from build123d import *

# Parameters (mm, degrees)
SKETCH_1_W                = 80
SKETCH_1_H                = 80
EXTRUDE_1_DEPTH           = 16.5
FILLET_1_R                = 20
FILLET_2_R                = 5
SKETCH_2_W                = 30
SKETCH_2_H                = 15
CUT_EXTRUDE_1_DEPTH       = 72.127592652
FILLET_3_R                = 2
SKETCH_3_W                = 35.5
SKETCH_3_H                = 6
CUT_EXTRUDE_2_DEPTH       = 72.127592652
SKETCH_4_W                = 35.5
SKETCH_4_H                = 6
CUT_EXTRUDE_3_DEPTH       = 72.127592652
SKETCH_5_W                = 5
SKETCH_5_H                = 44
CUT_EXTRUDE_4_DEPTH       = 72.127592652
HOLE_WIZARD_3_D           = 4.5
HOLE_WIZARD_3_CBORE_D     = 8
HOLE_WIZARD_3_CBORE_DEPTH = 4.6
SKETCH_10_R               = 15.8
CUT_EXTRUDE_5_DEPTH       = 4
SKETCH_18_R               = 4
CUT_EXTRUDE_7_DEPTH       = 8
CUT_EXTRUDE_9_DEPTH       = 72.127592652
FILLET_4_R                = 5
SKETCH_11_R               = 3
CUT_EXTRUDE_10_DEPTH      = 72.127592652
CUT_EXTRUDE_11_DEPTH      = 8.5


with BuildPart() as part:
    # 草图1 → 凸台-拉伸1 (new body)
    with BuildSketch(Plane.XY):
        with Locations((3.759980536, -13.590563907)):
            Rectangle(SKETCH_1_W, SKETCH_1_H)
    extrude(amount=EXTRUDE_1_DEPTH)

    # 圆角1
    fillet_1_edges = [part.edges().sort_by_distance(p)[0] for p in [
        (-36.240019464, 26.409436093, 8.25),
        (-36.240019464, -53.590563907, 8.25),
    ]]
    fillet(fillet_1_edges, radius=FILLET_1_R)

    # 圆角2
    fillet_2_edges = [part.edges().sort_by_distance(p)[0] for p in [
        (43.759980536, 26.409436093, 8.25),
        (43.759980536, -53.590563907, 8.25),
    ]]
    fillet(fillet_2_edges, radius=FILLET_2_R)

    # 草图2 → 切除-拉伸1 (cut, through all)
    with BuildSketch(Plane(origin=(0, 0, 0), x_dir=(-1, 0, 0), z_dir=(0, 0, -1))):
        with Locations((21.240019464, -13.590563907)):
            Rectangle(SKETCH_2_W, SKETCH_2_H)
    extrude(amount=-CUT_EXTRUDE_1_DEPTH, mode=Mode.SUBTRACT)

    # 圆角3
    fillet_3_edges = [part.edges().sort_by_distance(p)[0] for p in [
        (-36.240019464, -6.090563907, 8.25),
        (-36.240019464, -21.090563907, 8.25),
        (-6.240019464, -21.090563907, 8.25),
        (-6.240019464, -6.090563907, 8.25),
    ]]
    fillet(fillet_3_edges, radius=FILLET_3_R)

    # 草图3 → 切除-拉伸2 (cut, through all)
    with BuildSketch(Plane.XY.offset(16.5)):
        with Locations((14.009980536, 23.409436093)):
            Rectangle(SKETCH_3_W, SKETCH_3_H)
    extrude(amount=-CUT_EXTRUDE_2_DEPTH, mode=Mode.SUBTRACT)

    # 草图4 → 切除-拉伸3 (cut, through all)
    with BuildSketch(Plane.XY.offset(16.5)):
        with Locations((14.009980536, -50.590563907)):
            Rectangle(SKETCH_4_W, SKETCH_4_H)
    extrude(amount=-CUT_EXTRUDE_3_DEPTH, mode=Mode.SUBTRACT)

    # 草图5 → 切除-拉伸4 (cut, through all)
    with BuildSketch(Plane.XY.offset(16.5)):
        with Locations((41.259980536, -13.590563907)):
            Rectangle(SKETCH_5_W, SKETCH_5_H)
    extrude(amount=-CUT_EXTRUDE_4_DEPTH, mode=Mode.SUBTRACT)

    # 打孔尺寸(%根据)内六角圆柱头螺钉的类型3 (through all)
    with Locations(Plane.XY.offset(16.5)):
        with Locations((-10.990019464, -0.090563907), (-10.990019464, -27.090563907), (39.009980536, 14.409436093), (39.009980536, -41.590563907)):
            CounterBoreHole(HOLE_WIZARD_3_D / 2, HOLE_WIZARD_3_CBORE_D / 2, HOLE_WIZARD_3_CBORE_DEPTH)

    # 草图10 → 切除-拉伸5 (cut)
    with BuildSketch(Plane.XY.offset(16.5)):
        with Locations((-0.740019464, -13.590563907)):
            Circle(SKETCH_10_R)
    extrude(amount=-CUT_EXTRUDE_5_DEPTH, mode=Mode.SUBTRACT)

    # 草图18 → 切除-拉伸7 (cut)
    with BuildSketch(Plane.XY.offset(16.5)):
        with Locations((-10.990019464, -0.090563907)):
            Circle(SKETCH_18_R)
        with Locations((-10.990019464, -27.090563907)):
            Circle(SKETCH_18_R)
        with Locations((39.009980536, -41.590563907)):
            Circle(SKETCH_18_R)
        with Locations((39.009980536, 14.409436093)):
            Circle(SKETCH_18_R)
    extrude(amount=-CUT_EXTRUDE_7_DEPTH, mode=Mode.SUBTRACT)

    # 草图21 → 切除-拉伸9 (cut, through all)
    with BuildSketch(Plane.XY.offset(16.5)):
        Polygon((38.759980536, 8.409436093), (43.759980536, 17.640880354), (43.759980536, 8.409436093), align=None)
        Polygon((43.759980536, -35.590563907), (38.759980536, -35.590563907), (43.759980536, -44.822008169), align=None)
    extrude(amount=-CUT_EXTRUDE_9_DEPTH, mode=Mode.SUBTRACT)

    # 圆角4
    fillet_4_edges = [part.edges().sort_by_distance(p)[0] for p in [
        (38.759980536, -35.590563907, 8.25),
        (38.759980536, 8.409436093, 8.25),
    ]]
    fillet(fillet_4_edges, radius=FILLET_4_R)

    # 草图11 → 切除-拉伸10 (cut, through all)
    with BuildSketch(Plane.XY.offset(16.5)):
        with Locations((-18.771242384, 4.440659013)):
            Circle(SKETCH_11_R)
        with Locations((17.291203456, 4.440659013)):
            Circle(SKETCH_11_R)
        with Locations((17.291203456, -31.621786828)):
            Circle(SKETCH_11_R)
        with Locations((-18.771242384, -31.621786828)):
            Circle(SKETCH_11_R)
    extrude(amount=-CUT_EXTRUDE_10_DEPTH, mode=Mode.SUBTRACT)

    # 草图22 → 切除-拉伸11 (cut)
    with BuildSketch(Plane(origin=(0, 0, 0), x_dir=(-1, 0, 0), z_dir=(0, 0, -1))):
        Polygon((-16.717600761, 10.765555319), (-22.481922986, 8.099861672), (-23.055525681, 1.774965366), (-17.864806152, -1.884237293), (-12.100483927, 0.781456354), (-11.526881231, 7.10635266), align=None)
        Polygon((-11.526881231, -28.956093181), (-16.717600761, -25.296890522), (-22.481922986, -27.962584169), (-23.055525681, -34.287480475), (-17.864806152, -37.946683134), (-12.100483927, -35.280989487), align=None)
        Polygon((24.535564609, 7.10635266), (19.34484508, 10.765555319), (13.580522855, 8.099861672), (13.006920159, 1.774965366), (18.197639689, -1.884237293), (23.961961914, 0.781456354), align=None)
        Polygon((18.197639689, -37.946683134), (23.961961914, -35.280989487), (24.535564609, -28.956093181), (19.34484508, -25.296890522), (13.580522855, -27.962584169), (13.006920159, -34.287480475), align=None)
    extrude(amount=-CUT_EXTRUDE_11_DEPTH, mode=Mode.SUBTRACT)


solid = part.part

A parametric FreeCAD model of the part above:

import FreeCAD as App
import Part
import Sketcher

V = App.Vector
Q = App.Units.Quantity


def edges_at(feature, points):
    """Names of the edges that pass closest to the given points."""
    edges = feature.Shape.Edges
    near = lambda p: min(range(len(edges)), key=lambda i: edges[i].distToShape(Part.Vertex(*p))[0])
    return sorted({f"Edge{near(p) + 1}" for p in points})

doc = App.newDocument("Part")
body = doc.addObject("PartDesign::Body", "Body")

sketch1 = body.newObject("Sketcher::SketchObject", "Sketch")
sketch1.AttachmentSupport = (doc.getObject("XY_Plane"), [""])
sketch1.MapMode = "FlatFace"
sketch1.addGeometry([
    Part.LineSegment(V(-36, 26, 0), V(-36, -54, 0)),
    Part.LineSegment(V(-36, -54, 0), V(44, -54, 0)),
    Part.LineSegment(V(44, -54, 0), V(44, 26, 0)),
    Part.LineSegment(V(44, 26, 0), V(-36, 26, 0)),
], False)
sketch1.addConstraint([
    Sketcher.Constraint("Coincident", 0, 2, 1, 1),
    Sketcher.Constraint("Coincident", 1, 2, 2, 1),
    Sketcher.Constraint("Coincident", 2, 2, 3, 1),
    Sketcher.Constraint("Coincident", 3, 2, 0, 1),
    Sketcher.Constraint("Vertical", 0),
    Sketcher.Constraint("Horizontal", 1),
    Sketcher.Constraint("Vertical", 2),
    Sketcher.Constraint("Horizontal", 3),
    Sketcher.Constraint("Equal", 3, 0),
    Sketcher.Constraint("DistanceX", 1, 1, 1, 2, Q("80 mm")),
    Sketcher.Constraint("DistanceX", 0, 2, -1, 1, Q("36.240019 mm")),
    Sketcher.Constraint("DistanceY", 0, 2, -1, 1, Q("53.590564 mm")),
])
pad1 = body.newObject("PartDesign::Pad", "Pad")
pad1.Profile = sketch1
pad1.Length = 16.5
doc.recompute()

fillet = body.newObject("PartDesign::Fillet", "Fillet")
fillet.Base = (pad1, edges_at(pad1, [(-36.24, 26.409, 8.25), (-36.24, -53.591, 8.25)]))
fillet.Radius = 20
doc.recompute()

fillet2 = body.newObject("PartDesign::Fillet", "Fillet001")
fillet2.Base = (fillet, edges_at(fillet, [(43.76, 26.409, 8.25), (43.76, -53.591, 8.25)]))
fillet2.Radius = 5

sketch2 = body.newObject("Sketcher::SketchObject", "Sketch001")
sketch2.AttachmentSupport = (doc.getObject("XY_Plane"), [""])
sketch2.MapMode = "FlatFace"
sketch2.addGeometry([
    Part.LineSegment(V(-6, -6, 0), V(-6, -21, 0)),
    Part.LineSegment(V(-6, -21, 0), V(-36, -21, 0)),
    Part.LineSegment(V(-36, -21, 0), V(-36, -6, 0)),
    Part.LineSegment(V(-36, -6, 0), V(-6, -6, 0)),
], False)
sketch2.addConstraint([
    Sketcher.Constraint("Coincident", 0, 2, 1, 1),
    Sketcher.Constraint("Coincident", 1, 2, 2, 1),
    Sketcher.Constraint("Coincident", 2, 2, 3, 1),
    Sketcher.Constraint("Coincident", 3, 2, 0, 1),
    Sketcher.Constraint("Vertical", 0),
    Sketcher.Constraint("Horizontal", 1),
    Sketcher.Constraint("Vertical", 2),
    Sketcher.Constraint("Horizontal", 3),
    Sketcher.Constraint("DistanceX", 1, 2, 1, 1, Q("30 mm")),
    Sketcher.Constraint("DistanceY", 0, 2, 0, 1, Q("15 mm")),
    Sketcher.Constraint("DistanceX", 0, 2, -1, 1, Q("6.240019 mm")),
    Sketcher.Constraint("DistanceY", 0, 2, -1, 1, Q("21.090564 mm")),
])
pocket1 = body.newObject("PartDesign::Pocket", "Pocket")
pocket1.Profile = sketch2
pocket1.Type = "ThroughAll"
pocket1.Reversed = True
doc.recompute()

fillet3 = body.newObject("PartDesign::Fillet", "Fillet002")
fillet3.Base = (pocket1, edges_at(pocket1, [
    (-36.24, -6.091, 8.25),
    (-36.24, -21.091, 8.25),
    (-6.24, -21.091, 8.25),
    (-6.24, -6.091, 8.25),
]))
fillet3.Radius = 2

sketch3 = body.newObject("Sketcher::SketchObject", "Sketch002")
sketch3.AttachmentSupport = (doc.getObject("XY_Plane"), [""])
sketch3.MapMode = "FlatFace"
sketch3.AttachmentOffset = App.Placement(V(0, 0, 16.5), App.Rotation())
sketch3.addGeometry([
    Part.LineSegment(V(-4, 26, 0), V(-4, 20, 0)),
    Part.LineSegment(V(-4, 20, 0), V(32, 20, 0)),
    Part.LineSegment(V(32, 20, 0), V(32, 26, 0)),
    Part.LineSegment(V(32, 26, 0), V(-4, 26, 0)),
], False)
sketch3.addConstraint([
    Sketcher.Constraint("Coincident", 0, 2, 1, 1),
    Sketcher.Constraint("Coincident", 1, 2, 2, 1),
    Sketcher.Constraint("Coincident", 2, 2, 3, 1),
    Sketcher.Constraint("Coincident", 3, 2, 0, 1),
    Sketcher.Constraint("Vertical", 0),
    Sketcher.Constraint("Horizontal", 1),
    Sketcher.Constraint("Vertical", 2),
    Sketcher.Constraint("Horizontal", 3),
    Sketcher.Constraint("DistanceY", 0, 2, 0, 1, Q("6 mm")),
    Sketcher.Constraint("DistanceX", 1, 1, 1, 2, Q("35.5 mm")),
    Sketcher.Constraint("DistanceX", 0, 2, -1, 1, Q("3.740019 mm")),
    Sketcher.Constraint("DistanceY", -1, 1, 0, 2, Q("20.409436 mm")),
])
pocket2 = body.newObject("PartDesign::Pocket", "Pocket001")
pocket2.Profile = sketch3
pocket2.Type = "ThroughAll"

sketch4 = body.newObject("Sketcher::SketchObject", "Sketch003")
sketch4.AttachmentSupport = (doc.getObject("XY_Plane"), [""])
sketch4.MapMode = "FlatFace"
sketch4.AttachmentOffset = App.Placement(V(0, 0, 16.5), App.Rotation())
sketch4.addGeometry([
    Part.LineSegment(V(-4, -48, 0), V(-4, -54, 0)),
    Part.LineSegment(V(-4, -54, 0), V(32, -54, 0)),
    Part.LineSegment(V(32, -54, 0), V(32, -48, 0)),
    Part.LineSegment(V(32, -48, 0), V(-4, -48, 0)),
], False)
sketch4.addConstraint([
    Sketcher.Constraint("Coincident", 0, 2, 1, 1),
    Sketcher.Constraint("Coincident", 1, 2, 2, 1),
    Sketcher.Constraint("Coincident", 2, 2, 3, 1),
    Sketcher.Constraint("Coincident", 3, 2, 0, 1),
    Sketcher.Constraint("Vertical", 0),
    Sketcher.Constraint("Horizontal", 1),
    Sketcher.Constraint("Vertical", 2),
    Sketcher.Constraint("Horizontal", 3),
    Sketcher.Constraint("DistanceY", 0, 2, 0, 1, Q("6 mm")),
    Sketcher.Constraint("DistanceX", 1, 1, 1, 2, Q("35.5 mm")),
    Sketcher.Constraint("DistanceX", 0, 2, -1, 1, Q("3.740019 mm")),
    Sketcher.Constraint("DistanceY", 0, 2, -1, 1, Q("53.590564 mm")),
])
pocket3 = body.newObject("PartDesign::Pocket", "Pocket002")
pocket3.Profile = sketch4
pocket3.Type = "ThroughAll"

sketch5 = body.newObject("Sketcher::SketchObject", "Sketch004")
sketch5.AttachmentSupport = (doc.getObject("XY_Plane"), [""])
sketch5.MapMode = "FlatFace"
sketch5.AttachmentOffset = App.Placement(V(0, 0, 16.5), App.Rotation())
sketch5.addGeometry([
    Part.LineSegment(V(39, 8, 0), V(39, -36, 0)),
    Part.LineSegment(V(39, -36, 0), V(44, -36, 0)),
    Part.LineSegment(V(44, -36, 0), V(44, 8, 0)),
    Part.LineSegment(V(44, 8, 0), V(39, 8, 0)),
], False)
sketch5.addConstraint([
    Sketcher.Constraint("Coincident", 0, 2, 1, 1),
    Sketcher.Constraint("Coincident", 1, 2, 2, 1),
    Sketcher.Constraint("Coincident", 2, 2, 3, 1),
    Sketcher.Constraint("Coincident", 3, 2, 0, 1),
    Sketcher.Constraint("Vertical", 0),
    Sketcher.Constraint("Horizontal", 1),
    Sketcher.Constraint("Vertical", 2),
    Sketcher.Constraint("Horizontal", 3),
    Sketcher.Constraint("DistanceX", 1, 1, 1, 2, Q("5 mm")),
    Sketcher.Constraint("DistanceY", 0, 2, 0, 1, Q("44 mm")),
    Sketcher.Constraint("DistanceX", -1, 1, 0, 2, Q("38.759981 mm")),
    Sketcher.Constraint("DistanceY", 0, 2, -1, 1, Q("35.590564 mm")),
])
pocket4 = body.newObject("PartDesign::Pocket", "Pocket003")
pocket4.Profile = sketch5
pocket4.Type = "ThroughAll"

sketch6 = body.newObject("Sketcher::SketchObject", "Sketch005")
sketch6.AttachmentSupport = (doc.getObject("XY_Plane"), [""])
sketch6.MapMode = "FlatFace"
sketch6.AttachmentOffset = App.Placement(V(0, 0, 16.5), App.Rotation())
sketch6.addGeometry([
    Part.Circle(V(-11, -0.1, 0), V(0, 0, 1), 2.2),
    Part.Circle(V(-11, -27.1, 0), V(0, 0, 1), 2.2),
    Part.Circle(V(39, 14.4, 0), V(0, 0, 1), 2.2),
    Part.Circle(V(39, -41.6, 0), V(0, 0, 1), 2.2),
], False)
sketch6.addConstraint([
    Sketcher.Constraint("Equal", 0, 1),
    Sketcher.Constraint("Equal", 1, 2),
    Sketcher.Constraint("Equal", 2, 3),
    Sketcher.Constraint("Vertical", 0, 3, 1, 3),
    Sketcher.Constraint("Vertical", 2, 3, 3, 3),
    Sketcher.Constraint("Diameter", 0, Q("4.5 mm")),
    Sketcher.Constraint("DistanceY", 1, 3, 0, 3, Q("27 mm")),
    Sketcher.Constraint("DistanceX", 0, 3, 2, 3, Q("50 mm")),
    Sketcher.Constraint("DistanceY", 3, 3, 2, 3, Q("56 mm")),
    Sketcher.Constraint("DistanceY", 0, 3, 2, 3, Q("14.5 mm")),
    Sketcher.Constraint("DistanceX", 0, 3, -1, 1, Q("10.990019 mm")),
    Sketcher.Constraint("DistanceY", 0, 3, -1, 1, Q("0.090564 mm")),
])
doc.recompute()
hole = body.newObject("PartDesign::Hole", "Hole")
hole.Profile = sketch6
hole.ThreadType = "None"
hole.Diameter = 4.5
hole.DepthType = "ThroughAll"
hole.HoleCutType = "Counterbore"
hole.HoleCutDiameter = 8
hole.HoleCutDepth = 4.6

sketch7 = body.newObject("Sketcher::SketchObject", "Sketch006")
sketch7.AttachmentSupport = (doc.getObject("XY_Plane"), [""])
sketch7.MapMode = "FlatFace"
sketch7.AttachmentOffset = App.Placement(V(0, 0, 16.5), App.Rotation())
sketch7.addGeometry(Part.Circle(V(-1, -14, 0), V(0, 0, 1), 16), False)
sketch7.addConstraint([
    Sketcher.Constraint("Diameter", 0, Q("31.6 mm")),
    Sketcher.Constraint("DistanceX", 0, 3, -1, 1, Q("0.740019 mm")),
    Sketcher.Constraint("DistanceY", 0, 3, -1, 1, Q("13.590564 mm")),
])
pocket5 = body.newObject("PartDesign::Pocket", "Pocket004")
pocket5.Profile = sketch7
pocket5.Length = 4

sketch8 = body.newObject("Sketcher::SketchObject", "Sketch007")
sketch8.AttachmentSupport = (doc.getObject("XY_Plane"), [""])
sketch8.MapMode = "FlatFace"
sketch8.AttachmentOffset = App.Placement(V(0, 0, 16.5), App.Rotation())
sketch8.addGeometry([
    Part.Circle(V(-11, -0.1, 0), V(0, 0, 1), 4),
    Part.Circle(V(-11, -27.1, 0), V(0, 0, 1), 4),
    Part.Circle(V(39, -41.6, 0), V(0, 0, 1), 4),
    Part.Circle(V(39, 14.4, 0), V(0, 0, 1), 4),
], False)
sketch8.addConstraint([
    Sketcher.Constraint("Equal", 0, 1),
    Sketcher.Constraint("Equal", 1, 2),
    Sketcher.Constraint("Equal", 2, 3),
    Sketcher.Constraint("Vertical", 0, 3, 1, 3),
    Sketcher.Constraint("Vertical", 2, 3, 3, 3),
    Sketcher.Constraint("Diameter", 0, Q("8 mm")),
    Sketcher.Constraint("DistanceY", 1, 3, 0, 3, Q("27 mm")),
    Sketcher.Constraint("DistanceX", 1, 3, 2, 3, Q("50 mm")),
    Sketcher.Constraint("DistanceY", 2, 3, 3, 3, Q("56 mm")),
    Sketcher.Constraint("DistanceY", 2, 3, 1, 3, Q("14.5 mm")),
    Sketcher.Constraint("DistanceX", 0, 3, -1, 1, Q("10.990019 mm")),
    Sketcher.Constraint("DistanceY", 0, 3, -1, 1, Q("0.090564 mm")),
])
pocket6 = body.newObject("PartDesign::Pocket", "Pocket005")
pocket6.Profile = sketch8
pocket6.Length = 8

sketch9 = body.newObject("Sketcher::SketchObject", "Sketch008")
sketch9.AttachmentSupport = (doc.getObject("XY_Plane"), [""])
sketch9.MapMode = "FlatFace"
sketch9.AttachmentOffset = App.Placement(V(0, 0, 16.5), App.Rotation())
sketch9.addGeometry([
    Part.LineSegment(V(44, 18, 0), V(39, 8, 0)),
    Part.LineSegment(V(39, 8, 0), V(44, 8, 0)),
    Part.LineSegment(V(44, 8, 0), V(44, 18, 0)),
    Part.LineSegment(V(44, -36, 0), V(39, -36, 0)),
    Part.LineSegment(V(39, -36, 0), V(44, -45, 0)),
    Part.LineSegment(V(44, -45, 0), V(44, -36, 0)),
], False)
sketch9.addConstraint([
    Sketcher.Constraint("Coincident", 0, 2, 1, 1),
    Sketcher.Constraint("Coincident", 1, 2, 2, 1),
    Sketcher.Constraint("Coincident", 2, 2, 0, 1),
    Sketcher.Constraint("Coincident", 3, 2, 4, 1),
    Sketcher.Constraint("Coincident", 4, 2, 5, 1),
    Sketcher.Constraint("Coincident", 5, 2, 3, 1),
    Sketcher.Constraint("Horizontal", 1),
    Sketcher.Constraint("Vertical", 2),
    Sketcher.Constraint("Horizontal", 3),
    Sketcher.Constraint("Vertical", 5),
    Sketcher.Constraint("Vertical", 0, 2, 3, 2),
    Sketcher.Constraint("Vertical", 2, 2, 4, 2),
    Sketcher.Constraint("Equal", 2, 5),
    Sketcher.Constraint("DistanceX", 1, 1, 1, 2, Q("5 mm")),
    Sketcher.Constraint("DistanceY", 3, 2, 0, 2, Q("44 mm")),
    Sketcher.Constraint("Distance", 0, Q("10.498551 mm")),
    Sketcher.Constraint("DistanceX", -1, 1, 0, 2, Q("38.759981 mm")),
    Sketcher.Constraint("DistanceY", -1, 1, 2, 2, Q("17.64088 mm")),
])
pocket7 = body.newObject("PartDesign::Pocket", "Pocket006")
pocket7.Profile = sketch9
pocket7.Type = "ThroughAll"
doc.recompute()

fillet4 = body.newObject("PartDesign::Fillet", "Fillet003")
fillet4.Base = (pocket7, edges_at(pocket7, [(38.76, -35.591, 8.25), (38.76, 8.409, 8.25)]))
fillet4.Radius = 5

sketch10 = body.newObject("Sketcher::SketchObject", "Sketch009")
sketch10.AttachmentSupport = (doc.getObject("XY_Plane"), [""])
sketch10.MapMode = "FlatFace"
sketch10.AttachmentOffset = App.Placement(V(0, 0, 16.5), App.Rotation())
sketch10.addGeometry([
    Part.Circle(V(-18.8, 4.4, 0), V(0, 0, 1), 3),
    Part.Circle(V(17.3, 4.4, 0), V(0, 0, 1), 3),
    Part.Circle(V(17.3, -31.6, 0), V(0, 0, 1), 3),
    Part.Circle(V(-18.8, -31.6, 0), V(0, 0, 1), 3),
], False)
sketch10.addConstraint([
    Sketcher.Constraint("Equal", 0, 1),
    Sketcher.Constraint("Equal", 1, 2),
    Sketcher.Constraint("Equal", 2, 3),
    Sketcher.Constraint("Horizontal", 0, 3, 1, 3),
    Sketcher.Constraint("Horizontal", 2, 3, 3, 3),
    Sketcher.Constraint("Vertical", 1, 3, 2, 3),
    Sketcher.Constraint("Vertical", 0, 3, 3, 3),
    Sketcher.Constraint("Diameter", 0, Q("6 mm")),
    Sketcher.Constraint("DistanceY", -1, 1, 0, 3, Q("4.440659 mm")),
    Sketcher.Constraint("DistanceX", 0, 3, -1, 1, Q("18.771242 mm")),
    Sketcher.Constraint("DistanceX", -1, 1, 1, 3, Q("17.291203 mm")),
    Sketcher.Constraint("DistanceY", 2, 3, -1, 1, Q("31.621787 mm")),
])
pocket8 = body.newObject("PartDesign::Pocket", "Pocket007")
pocket8.Profile = sketch10
pocket8.Type = "ThroughAll"

sketch11 = body.newObject("Sketcher::SketchObject", "Sketch010")
sketch11.AttachmentSupport = (doc.getObject("XY_Plane"), [""])
sketch11.MapMode = "FlatFace"
sketch11.addGeometry([
    Part.LineSegment(V(16.717601, 10.765555, 0), V(22.481923, 8.099862, 0)),
    Part.LineSegment(V(22.481923, 8.099862, 0), V(23.055526, 1.774965, 0)),
    Part.LineSegment(V(23.055526, 1.774965, 0), V(17.864806, -1.884237, 0)),
    Part.LineSegment(V(17.864806, -1.884237, 0), V(12.100484, 0.781456, 0)),
    Part.LineSegment(V(12.100484, 0.781456, 0), V(11.526881, 7.106353, 0)),
    Part.LineSegment(V(11.526881, 7.106353, 0), V(16.717601, 10.765555, 0)),
    Part.LineSegment(V(11.526881, -28.956093, 0), V(16.717601, -25.296891, 0)),
    Part.LineSegment(V(16.717601, -25.296891, 0), V(22.481923, -27.962584, 0)),
    Part.LineSegment(V(22.481923, -27.962584, 0), V(23.055526, -34.28748, 0)),
    Part.LineSegment(V(23.055526, -34.28748, 0), V(17.864806, -37.946683, 0)),
    Part.LineSegment(V(17.864806, -37.946683, 0), V(12.100484, -35.280989, 0)),
    Part.LineSegment(V(12.100484, -35.280989, 0), V(11.526881, -28.956093, 0)),
    Part.LineSegment(V(-24.535565, 7.106353, 0), V(-19.344845, 10.765555, 0)),
    Part.LineSegment(V(-19.344845, 10.765555, 0), V(-13.580523, 8.099862, 0)),
    Part.LineSegment(V(-13.580523, 8.099862, 0), V(-13.00692, 1.774965, 0)),
    Part.LineSegment(V(-13.00692, 1.774965, 0), V(-18.19764, -1.884237, 0)),
    Part.LineSegment(V(-18.19764, -1.884237, 0), V(-23.961962, 0.781456, 0)),
    Part.LineSegment(V(-23.961962, 0.781456, 0), V(-24.535565, 7.106353, 0)),
    Part.LineSegment(V(-18.19764, -37.946683, 0), V(-23.961962, -35.280989, 0)),
    Part.LineSegment(V(-23.961962, -35.280989, 0), V(-24.535565, -28.956093, 0)),
    Part.LineSegment(V(-24.535565, -28.956093, 0), V(-19.344845, -25.296891, 0)),
    Part.LineSegment(V(-19.344845, -25.296891, 0), V(-13.580523, -27.962584, 0)),
    Part.LineSegment(V(-13.580523, -27.962584, 0), V(-13.00692, -34.28748, 0)),
    Part.LineSegment(V(-13.00692, -34.28748, 0), V(-18.19764, -37.946683, 0)),
], False)
sketch11.addConstraint([
    Sketcher.Constraint("Coincident", 0, 2, 1, 1),
    Sketcher.Constraint("Coincident", 1, 2, 2, 1),
    Sketcher.Constraint("Coincident", 2, 2, 3, 1),
    Sketcher.Constraint("Coincident", 3, 2, 4, 1),
    Sketcher.Constraint("Coincident", 4, 2, 5, 1),
    Sketcher.Constraint("Coincident", 5, 2, 0, 1),
    Sketcher.Constraint("Coincident", 6, 2, 7, 1),
    Sketcher.Constraint("Coincident", 7, 2, 8, 1),
    Sketcher.Constraint("Coincident", 8, 2, 9, 1),
    Sketcher.Constraint("Coincident", 9, 2, 10, 1),
    Sketcher.Constraint("Coincident", 10, 2, 11, 1),
    Sketcher.Constraint("Coincident", 11, 2, 6, 1),
    Sketcher.Constraint("Coincident", 12, 2, 13, 1),
    Sketcher.Constraint("Coincident", 13, 2, 14, 1),
    Sketcher.Constraint("Coincident", 14, 2, 15, 1),
    Sketcher.Constraint("Coincident", 15, 2, 16, 1),
    Sketcher.Constraint("Coincident", 16, 2, 17, 1),
    Sketcher.Constraint("Coincident", 17, 2, 12, 1),
    Sketcher.Constraint("Coincident", 18, 2, 19, 1),
    Sketcher.Constraint("Coincident", 19, 2, 20, 1),
    Sketcher.Constraint("Coincident", 20, 2, 21, 1),
    Sketcher.Constraint("Coincident", 21, 2, 22, 1),
    Sketcher.Constraint("Coincident", 22, 2, 23, 1),
    Sketcher.Constraint("Coincident", 23, 2, 18, 1),
    Sketcher.Constraint("DistanceX", -1, 1, 5, 2, Q("16.717601 mm")),
    Sketcher.Constraint("DistanceX", -1, 1, 6, 2, Q("16.717601 mm")),
    Sketcher.Constraint("DistanceY", 2, 2, 0, 2, Q("9.984099 mm")),
    Sketcher.Constraint("DistanceY", 3, 2, 5, 2, Q("9.984099 mm")),
    Sketcher.Constraint("DistanceY", 9, 2, 7, 2, Q("9.984099 mm")),
    Sketcher.Constraint("DistanceY", 10, 2, 6, 2, Q("9.984099 mm")),
    Sketcher.Constraint("DistanceY", 3, 2, 12, 2, Q("9.984099 mm")),
    Sketcher.Constraint("DistanceY", 2, 2, 13, 2, Q("9.984099 mm")),
    Sketcher.Constraint("DistanceX", 14, 2, 4, 2, Q("24.533801 mm")),
    Sketcher.Constraint("DistanceY", 15, 2, 13, 2, Q("9.984099 mm")),
    Sketcher.Constraint("DistanceY", 16, 2, 12, 2, Q("9.984099 mm")),
    Sketcher.Constraint("DistanceY", 18, 2, 20, 2, Q("9.984099 mm")),
    Sketcher.Constraint("DistanceX", 22, 2, 11, 2, Q("24.533801 mm")),
    Sketcher.Constraint("DistanceY", 23, 2, 21, 2, Q("9.984099 mm")),
    Sketcher.Constraint("DistanceY", -1, 1, 0, 2, Q("8.099862 mm")),
    Sketcher.Constraint("DistanceX", -1, 1, 4, 2, Q("11.526881 mm")),
    Sketcher.Constraint("DistanceY", 6, 2, -1, 1, Q("25.296891 mm")),
    Sketcher.Constraint("DistanceY", 8, 2, -1, 1, Q("34.28748 mm")),
    Sketcher.Constraint("DistanceX", -1, 1, 11, 2, Q("11.526881 mm")),
    Sketcher.Constraint("DistanceX", 15, 2, -1, 1, Q("18.19764 mm")),
    Sketcher.Constraint("DistanceX", 16, 2, -1, 1, Q("23.961962 mm")),
    Sketcher.Constraint("DistanceX", 18, 2, -1, 1, Q("23.961962 mm")),
    Sketcher.Constraint("DistanceY", 18, 2, -1, 1, Q("35.280989 mm")),
    Sketcher.Constraint("DistanceY", 22, 2, -1, 1, Q("34.28748 mm")),
    Sketcher.Constraint("DistanceX", 23, 2, -1, 1, Q("18.19764 mm")),
    Sketcher.Constraint("DistanceX", 2, 2, 1, 2, Q("5.19072 mm")),
    Sketcher.Constraint("DistanceX", 3, 2, 1, 2, Q("10.955042 mm")),
    Sketcher.Constraint("DistanceY", 3, 2, 1, 2, Q("0.993509 mm")),
    Sketcher.Constraint("DistanceX", 3, 2, 0, 2, Q("10.381439 mm")),
    Sketcher.Constraint("DistanceY", 2, 2, 4, 2, Q("8.99059 mm")),
    Sketcher.Constraint("DistanceX", 4, 2, 0, 2, Q("10.955042 mm")),
    Sketcher.Constraint("DistanceY", 7, 2, 1, 2, Q("29.73755 mm")),
    Sketcher.Constraint("DistanceX", 3, 2, 7, 2, Q("10.381439 mm")),
    Sketcher.Constraint("DistanceX", 2, 2, 8, 2, Q("5.19072 mm")),
    Sketcher.Constraint("DistanceX", 9, 2, 8, 2, Q("5.19072 mm")),
    Sketcher.Constraint("DistanceX", 10, 2, 8, 2, Q("10.955042 mm")),
    Sketcher.Constraint("DistanceY", 9, 2, 11, 2, Q("8.99059 mm")),
    Sketcher.Constraint("DistanceX", 12, 2, 3, 2, Q("31.445329 mm")),
    Sketcher.Constraint("DistanceX", 13, 2, 2, 2, Q("31.445329 mm")),
    Sketcher.Constraint("DistanceY", 14, 2, 12, 2, Q("8.99059 mm")),
    Sketcher.Constraint("DistanceX", 17, 2, 12, 2, Q("5.19072 mm")),
    Sketcher.Constraint("DistanceY", 17, 2, 13, 2, Q("0.993509 mm")),
    Sketcher.Constraint("DistanceY", 19, 2, 16, 2, Q("29.73755 mm")),
    Sketcher.Constraint("DistanceX", 19, 2, 20, 2, Q("5.19072 mm")),
    Sketcher.Constraint("DistanceX", 19, 2, 21, 2, Q("10.955042 mm")),
    Sketcher.Constraint("DistanceY", 19, 2, 21, 2, Q("0.993509 mm")),
    Sketcher.Constraint("DistanceX", 18, 2, 21, 2, Q("10.381439 mm")),
    Sketcher.Constraint("Distance", 0, Q("6.350853 mm")),
])
pocket9 = body.newObject("PartDesign::Pocket", "Pocket008")
pocket9.Profile = sketch11
pocket9.Length = 8.5
pocket9.Reversed = True

doc.recompute()
